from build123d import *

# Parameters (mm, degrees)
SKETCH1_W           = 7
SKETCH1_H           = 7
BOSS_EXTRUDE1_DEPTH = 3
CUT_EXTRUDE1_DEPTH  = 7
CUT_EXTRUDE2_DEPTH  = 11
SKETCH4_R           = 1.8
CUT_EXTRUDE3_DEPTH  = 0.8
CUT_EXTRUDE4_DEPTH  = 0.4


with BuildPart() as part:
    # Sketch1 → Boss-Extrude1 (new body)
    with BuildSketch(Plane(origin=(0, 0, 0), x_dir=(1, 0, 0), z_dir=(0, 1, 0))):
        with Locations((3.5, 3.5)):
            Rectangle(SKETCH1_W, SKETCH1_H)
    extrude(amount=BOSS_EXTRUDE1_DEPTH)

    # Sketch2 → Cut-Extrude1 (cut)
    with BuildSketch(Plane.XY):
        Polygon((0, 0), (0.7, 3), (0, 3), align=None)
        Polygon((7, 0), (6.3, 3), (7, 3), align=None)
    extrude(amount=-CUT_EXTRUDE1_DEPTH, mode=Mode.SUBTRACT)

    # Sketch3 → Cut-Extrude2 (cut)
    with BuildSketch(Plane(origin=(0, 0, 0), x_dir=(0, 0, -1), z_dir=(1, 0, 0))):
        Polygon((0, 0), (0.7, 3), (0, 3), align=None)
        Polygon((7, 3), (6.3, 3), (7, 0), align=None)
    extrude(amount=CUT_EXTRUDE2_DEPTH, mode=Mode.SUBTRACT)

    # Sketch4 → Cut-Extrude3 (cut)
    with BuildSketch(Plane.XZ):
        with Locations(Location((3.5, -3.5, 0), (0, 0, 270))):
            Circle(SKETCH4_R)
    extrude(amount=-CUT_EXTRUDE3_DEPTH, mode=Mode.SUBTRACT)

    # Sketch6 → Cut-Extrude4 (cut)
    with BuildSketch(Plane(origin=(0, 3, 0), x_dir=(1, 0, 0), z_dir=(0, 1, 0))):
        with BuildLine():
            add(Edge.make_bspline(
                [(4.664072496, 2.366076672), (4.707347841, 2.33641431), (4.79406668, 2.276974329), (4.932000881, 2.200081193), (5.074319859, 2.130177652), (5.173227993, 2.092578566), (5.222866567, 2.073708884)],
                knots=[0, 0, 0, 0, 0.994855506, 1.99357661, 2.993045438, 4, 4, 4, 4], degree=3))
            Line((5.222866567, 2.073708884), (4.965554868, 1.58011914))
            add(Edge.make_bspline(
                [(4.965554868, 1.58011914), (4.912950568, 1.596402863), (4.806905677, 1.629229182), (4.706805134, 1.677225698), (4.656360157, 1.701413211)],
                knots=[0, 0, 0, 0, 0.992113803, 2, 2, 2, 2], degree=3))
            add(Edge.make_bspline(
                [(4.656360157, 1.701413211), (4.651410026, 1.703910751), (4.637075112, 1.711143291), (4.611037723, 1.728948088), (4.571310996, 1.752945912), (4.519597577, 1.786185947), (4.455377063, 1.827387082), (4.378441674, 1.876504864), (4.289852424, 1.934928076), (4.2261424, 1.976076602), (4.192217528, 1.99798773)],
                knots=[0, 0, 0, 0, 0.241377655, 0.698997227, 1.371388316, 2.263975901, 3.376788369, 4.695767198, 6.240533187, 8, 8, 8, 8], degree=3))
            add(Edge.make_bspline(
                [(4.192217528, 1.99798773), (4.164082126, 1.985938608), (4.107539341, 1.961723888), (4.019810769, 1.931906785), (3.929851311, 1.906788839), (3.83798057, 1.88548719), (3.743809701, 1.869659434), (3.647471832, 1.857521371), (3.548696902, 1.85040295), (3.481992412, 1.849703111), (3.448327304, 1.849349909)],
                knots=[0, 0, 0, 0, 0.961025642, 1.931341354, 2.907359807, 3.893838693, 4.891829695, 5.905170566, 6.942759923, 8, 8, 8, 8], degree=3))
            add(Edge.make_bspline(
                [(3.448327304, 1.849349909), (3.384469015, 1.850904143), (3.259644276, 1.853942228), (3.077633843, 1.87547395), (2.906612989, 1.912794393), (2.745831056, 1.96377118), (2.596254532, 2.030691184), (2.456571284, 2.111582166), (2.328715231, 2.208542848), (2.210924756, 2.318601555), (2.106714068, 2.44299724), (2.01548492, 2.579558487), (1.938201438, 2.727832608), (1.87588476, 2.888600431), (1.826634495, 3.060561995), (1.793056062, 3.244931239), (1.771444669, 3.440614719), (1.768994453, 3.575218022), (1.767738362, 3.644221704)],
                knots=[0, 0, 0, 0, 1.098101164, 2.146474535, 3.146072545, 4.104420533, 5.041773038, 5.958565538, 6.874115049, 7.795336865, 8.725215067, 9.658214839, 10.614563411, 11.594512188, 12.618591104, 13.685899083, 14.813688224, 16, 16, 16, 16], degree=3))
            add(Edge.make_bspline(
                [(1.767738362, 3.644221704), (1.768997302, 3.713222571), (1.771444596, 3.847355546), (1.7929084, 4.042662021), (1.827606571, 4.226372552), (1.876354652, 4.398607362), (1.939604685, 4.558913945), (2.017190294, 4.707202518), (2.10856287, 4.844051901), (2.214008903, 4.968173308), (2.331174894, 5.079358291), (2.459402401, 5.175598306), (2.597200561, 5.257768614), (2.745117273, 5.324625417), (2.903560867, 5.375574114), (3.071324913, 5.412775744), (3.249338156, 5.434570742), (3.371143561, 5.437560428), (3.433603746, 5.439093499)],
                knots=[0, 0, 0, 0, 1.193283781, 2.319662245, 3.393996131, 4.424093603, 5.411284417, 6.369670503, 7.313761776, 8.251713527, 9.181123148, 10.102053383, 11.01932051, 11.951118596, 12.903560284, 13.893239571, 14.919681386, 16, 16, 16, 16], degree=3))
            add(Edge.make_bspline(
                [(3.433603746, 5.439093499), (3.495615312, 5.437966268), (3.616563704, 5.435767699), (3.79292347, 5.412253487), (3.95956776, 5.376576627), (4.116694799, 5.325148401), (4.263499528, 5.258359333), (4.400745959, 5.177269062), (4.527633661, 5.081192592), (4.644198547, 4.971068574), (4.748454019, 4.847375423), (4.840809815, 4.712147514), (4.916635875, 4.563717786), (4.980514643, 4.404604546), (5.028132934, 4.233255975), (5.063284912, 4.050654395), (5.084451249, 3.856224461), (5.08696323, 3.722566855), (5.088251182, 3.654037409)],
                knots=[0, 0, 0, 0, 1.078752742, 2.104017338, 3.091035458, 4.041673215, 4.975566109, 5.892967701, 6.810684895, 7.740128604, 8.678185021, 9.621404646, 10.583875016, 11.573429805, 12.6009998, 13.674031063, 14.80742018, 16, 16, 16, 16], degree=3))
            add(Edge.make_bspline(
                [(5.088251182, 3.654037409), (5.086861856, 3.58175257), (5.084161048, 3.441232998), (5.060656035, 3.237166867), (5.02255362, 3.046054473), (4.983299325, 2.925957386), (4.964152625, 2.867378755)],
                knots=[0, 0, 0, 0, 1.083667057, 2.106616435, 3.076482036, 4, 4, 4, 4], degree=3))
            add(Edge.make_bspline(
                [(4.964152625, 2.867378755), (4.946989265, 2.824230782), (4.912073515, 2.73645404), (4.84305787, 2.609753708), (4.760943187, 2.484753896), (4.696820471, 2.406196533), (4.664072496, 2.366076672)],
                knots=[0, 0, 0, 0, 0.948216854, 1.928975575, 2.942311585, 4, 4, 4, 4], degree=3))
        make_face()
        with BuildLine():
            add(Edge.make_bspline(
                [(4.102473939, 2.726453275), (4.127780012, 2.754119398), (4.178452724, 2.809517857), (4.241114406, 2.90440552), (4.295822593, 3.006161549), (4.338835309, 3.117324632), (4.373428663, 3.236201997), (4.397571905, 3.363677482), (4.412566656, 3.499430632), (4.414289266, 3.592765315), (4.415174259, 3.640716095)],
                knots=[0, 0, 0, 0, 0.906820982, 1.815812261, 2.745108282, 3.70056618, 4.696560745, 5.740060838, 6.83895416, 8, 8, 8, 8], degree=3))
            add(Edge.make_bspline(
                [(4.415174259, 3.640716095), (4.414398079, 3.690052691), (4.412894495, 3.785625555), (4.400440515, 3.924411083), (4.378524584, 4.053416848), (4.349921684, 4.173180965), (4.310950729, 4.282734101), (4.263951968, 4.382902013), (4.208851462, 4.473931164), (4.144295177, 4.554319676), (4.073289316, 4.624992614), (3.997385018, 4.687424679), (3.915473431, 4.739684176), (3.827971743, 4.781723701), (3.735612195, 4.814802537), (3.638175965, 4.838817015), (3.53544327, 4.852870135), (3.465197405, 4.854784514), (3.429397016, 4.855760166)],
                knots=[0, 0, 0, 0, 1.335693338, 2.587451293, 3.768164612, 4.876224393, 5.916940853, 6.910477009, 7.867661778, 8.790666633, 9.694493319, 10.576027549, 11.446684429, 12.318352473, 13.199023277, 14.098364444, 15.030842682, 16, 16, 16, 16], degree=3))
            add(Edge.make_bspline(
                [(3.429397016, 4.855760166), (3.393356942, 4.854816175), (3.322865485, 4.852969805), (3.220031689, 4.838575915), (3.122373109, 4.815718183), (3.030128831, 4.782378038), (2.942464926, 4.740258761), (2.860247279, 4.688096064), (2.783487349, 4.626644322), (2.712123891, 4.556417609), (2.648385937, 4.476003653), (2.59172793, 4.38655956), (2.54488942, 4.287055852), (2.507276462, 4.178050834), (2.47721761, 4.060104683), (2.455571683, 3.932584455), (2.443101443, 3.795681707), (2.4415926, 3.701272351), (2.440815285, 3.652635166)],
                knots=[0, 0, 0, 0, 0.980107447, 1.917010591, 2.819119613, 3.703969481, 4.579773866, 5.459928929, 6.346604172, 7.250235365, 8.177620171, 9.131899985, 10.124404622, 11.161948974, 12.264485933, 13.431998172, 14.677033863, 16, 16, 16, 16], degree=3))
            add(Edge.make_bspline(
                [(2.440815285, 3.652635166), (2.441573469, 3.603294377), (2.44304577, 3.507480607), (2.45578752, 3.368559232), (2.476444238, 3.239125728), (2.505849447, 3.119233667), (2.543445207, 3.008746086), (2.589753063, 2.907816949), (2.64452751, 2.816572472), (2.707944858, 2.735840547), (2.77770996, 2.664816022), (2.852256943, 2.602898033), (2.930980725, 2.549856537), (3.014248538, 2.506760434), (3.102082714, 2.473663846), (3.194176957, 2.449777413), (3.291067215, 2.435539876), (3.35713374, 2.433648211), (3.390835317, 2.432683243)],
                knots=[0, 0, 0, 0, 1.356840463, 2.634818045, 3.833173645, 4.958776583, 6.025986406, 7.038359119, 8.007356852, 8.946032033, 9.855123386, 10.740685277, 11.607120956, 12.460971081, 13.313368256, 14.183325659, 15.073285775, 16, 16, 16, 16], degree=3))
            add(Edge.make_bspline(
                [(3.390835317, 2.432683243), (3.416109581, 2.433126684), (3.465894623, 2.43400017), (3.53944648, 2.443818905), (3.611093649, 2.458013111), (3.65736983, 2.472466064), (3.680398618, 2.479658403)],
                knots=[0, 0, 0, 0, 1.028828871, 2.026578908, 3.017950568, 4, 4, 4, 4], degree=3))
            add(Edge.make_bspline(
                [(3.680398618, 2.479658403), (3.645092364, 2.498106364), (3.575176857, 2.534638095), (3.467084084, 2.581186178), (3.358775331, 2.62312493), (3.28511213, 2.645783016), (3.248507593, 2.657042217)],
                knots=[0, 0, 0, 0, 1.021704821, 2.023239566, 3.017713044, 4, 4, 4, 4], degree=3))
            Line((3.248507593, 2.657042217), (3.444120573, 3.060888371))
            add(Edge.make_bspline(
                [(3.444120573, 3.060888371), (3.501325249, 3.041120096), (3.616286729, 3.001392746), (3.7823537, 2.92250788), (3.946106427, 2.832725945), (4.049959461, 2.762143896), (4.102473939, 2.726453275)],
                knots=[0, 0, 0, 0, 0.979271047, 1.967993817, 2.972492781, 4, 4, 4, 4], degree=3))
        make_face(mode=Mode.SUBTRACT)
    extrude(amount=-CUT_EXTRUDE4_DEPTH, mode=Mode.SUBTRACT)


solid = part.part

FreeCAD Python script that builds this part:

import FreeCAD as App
import Part
import Sketcher

V = App.Vector
Q = App.Units.Quantity


def add_polygon(sketch, points):
    """Adds a closed chain of lines whose ends are joined by coincident constraints."""
    first, n = sketch.GeometryCount, len(points)
    for a, b in zip(points, points[1:] + points[:1]):
        sketch.addGeometry(Part.LineSegment(App.Vector(*a, 0), App.Vector(*b, 0)), False)
    for i in range(n):
        sketch.addConstraint(Sketcher.Constraint("Coincident", first + i, 2, first + (i + 1) % n, 1))

doc = App.newDocument("Part")
body = doc.addObject("PartDesign::Body", "Body")

# Sketch on XZ plane
sketch1 = body.newObject("Sketcher::SketchObject", "Sketch")
sketch1.AttachmentSupport = (doc.getObject("XZ_Plane"), [""])
sketch1.MapMode = "FlatFace"
add_polygon(sketch1, [(0, -7), (0, 0), (7, 0), (7, -7)])  # lines 0-3
sketch1.addConstraint([
    Sketcher.Constraint("Vertical", 0),
    Sketcher.Constraint("Horizontal", 1),
    Sketcher.Constraint("Vertical", 2),
    Sketcher.Constraint("Horizontal", 3),
    Sketcher.Constraint("Coincident", 0, 2, -1, 1),
    Sketcher.Constraint("Equal", 3, 0),
    Sketcher.Constraint("DistanceX", 1, 1, 1, 2, Q("7 mm")),
])
pad1 = body.newObject("PartDesign::Pad", "Pad")
pad1.Profile = sketch1
pad1.Length = 3
pad1.Reversed = True

# Sketch on XY plane
sketch2 = body.newObject("Sketcher::SketchObject", "Sketch001")
sketch2.AttachmentSupport = (doc.getObject("XY_Plane"), [""])
sketch2.MapMode = "FlatFace"
add_polygon(sketch2, [(0, 0), (0.7, 3), (0, 3)])  # lines 0-2
add_polygon(sketch2, [(6.3, 3), (7, 0), (7, 3)])  # lines 3-5
sketch2.addConstraint([
    Sketcher.Constraint("Horizontal", 1),
    Sketcher.Constraint("Vertical", 2),
    Sketcher.Constraint("Vertical", 4),
    Sketcher.Constraint("Horizontal", 5),
    Sketcher.Constraint("Coincident", 2, 2, -1, 1),
    Sketcher.Constraint("PointOnObject", 3, 2, -1),
    Sketcher.Constraint("Horizontal", 1, 2, 4, 2),
    Sketcher.Constraint("Equal", 1, 5),
    Sketcher.Constraint("DistanceY", 2, 2, 2, 1, Q("3 mm")),
    Sketcher.Constraint("DistanceX", 1, 2, 1, 1, Q("0.7 mm")),
    Sketcher.Constraint("DistanceX", -1, 1, 3, 2, Q("7 mm")),
])
pocket1 = body.newObject("PartDesign::Pocket", "Pocket")
pocket1.Profile = sketch2
pocket1.Length = 7

# Sketch on YZ plane
sketch3 = body.newObject("Sketcher::SketchObject", "Sketch002")
sketch3.AttachmentSupport = (doc.getObject("YZ_Plane"), [""])
sketch3.MapMode = "FlatFace"
add_polygon(sketch3, [(0, 0), (3, -0.7), (3, 0)])  # lines 0-2
add_polygon(sketch3, [(3, -7), (3, -6.3), (0, -7)])  # lines 3-5
sketch3.addConstraint([
    Sketcher.Constraint("Vertical", 1),
    Sketcher.Constraint("Horizontal", 2),
    Sketcher.Constraint("Vertical", 3),
    Sketcher.Constraint("Horizontal", 5),
    Sketcher.Constraint("Coincident", 2, 2, -1, 1),
    Sketcher.Constraint("PointOnObject", 4, 2, -2),
    Sketcher.Constraint("Vertical", 1, 2, 3, 2),
    Sketcher.Constraint("Equal", 1, 3),
    Sketcher.Constraint("DistanceX", 2, 2, 2, 1, Q("3 mm")),
    Sketcher.Constraint("DistanceY", 1, 1, 1, 2, Q("0.7 mm")),
    Sketcher.Constraint("DistanceY", 4, 2, -1, 1, Q("7 mm")),
])
pocket2 = body.newObject("PartDesign::Pocket", "Pocket001")
pocket2.Profile = sketch3
pocket2.Length = 11
pocket2.Reversed = True

# Sketch on XZ plane
sketch4 = body.newObject("Sketcher::SketchObject", "Sketch003")
sketch4.AttachmentSupport = (doc.getObject("XZ_Plane"), [""])
sketch4.MapMode = "FlatFace"
sketch4.addGeometry(Part.Circle(V(3.5, -3.5, 0), V(0, 0, 1), 1.8), False)
sketch4.addConstraint([
    Sketcher.Constraint("Diameter", 0, Q("3.6 mm")),
    Sketcher.Constraint("DistanceX", -1, 1, 0, 3, Q("3.5 mm")),
    Sketcher.Constraint("DistanceY", 0, 3, -1, 1, Q("3.5 mm")),
])
pocket3 = body.newObject("PartDesign::Pocket", "Pocket002")
pocket3.Profile = sketch4
pocket3.Length = 0.8

# Sketch on XZ plane
sketch5 = body.newObject("Sketcher::SketchObject", "Sketch004")
sketch5.AttachmentSupport = (doc.getObject("XZ_Plane"), [""])
sketch5.MapMode = "FlatFace"
sketch5.AttachmentOffset = App.Placement(V(0, 0, -3), App.Rotation())
sketch5.addGeometry([
    Part.BSplineCurve([V(4.664072, -2.366077, 0), V(4.707348, -2.336414, 0), V(4.794067, -2.276974, 0), V(4.932001, -2.200081, 0), V(5.07432, -2.130178, 0), V(5.173228, -2.092579, 0), V(5.222867, -2.073709, 0)], [4, 1, 1, 1, 4], [0, 0.994855506, 1.99357661, 2.993045438, 4], False, 3, [1, 1, 1, 1, 1, 1, 1], False),  # 0
    Part.BSplineCurve([V(4.964153, -2.867379, 0), V(4.946989, -2.824231, 0), V(4.912074, -2.736454, 0), V(4.843058, -2.609754, 0), V(4.760943, -2.484754, 0), V(4.69682, -2.406197, 0), V(4.664072, -2.366077, 0)], [4, 1, 1, 1, 4], [0, 0.948216854, 1.928975575, 2.942311585, 4], False, 3, [1, 1, 1, 1, 1, 1, 1], False),  # 1
    Part.BSplineCurve([V(5.088251, -3.654037, 0), V(5.086862, -3.581753, 0), V(5.084161, -3.441233, 0), V(5.060656, -3.237167, 0), V(5.022554, -3.046054, 0), V(4.983299, -2.925957, 0), V(4.964153, -2.867379, 0)], [4, 1, 1, 1, 4], [0, 1.083667057, 2.106616435, 3.076482036, 4], False, 3, [1, 1, 1, 1, 1, 1, 1], False),  # 2
    Part.BSplineCurve([V(3.433604, -5.439093, 0), V(3.495615, -5.437966, 0), V(3.616564, -5.435768, 0), V(3.792923, -5.412253, 0), V(3.959568, -5.376577, 0), V(4.116695, -5.325148, 0), V(4.2635, -5.258359, 0), V(4.400746, -5.177269, 0), V(4.527634, -5.081193, 0), V(4.644199, -4.971069, 0), V(4.748454, -4.847375, 0), V(4.84081, -4.712148, 0), V(4.916636, -4.563718, 0), V(4.980515, -4.404605, 0), V(5.028133, -4.233256, 0), V(5.063285, -4.050654, 0), V(5.084451, -3.856224, 0), V(5.086963, -3.722567, 0), V(5.088251, -3.654037, 0)], [4, 1, 1, 1, 1, 1, 1, 1, 1, 1, 1, 1, 1, 1, 1, 1, 4], [0, 1.078752742, 2.104017338, 3.091035458, 4.041673215, 4.975566109, 5.892967701, 6.810684895, 7.740128604, 8.678185021, 9.621404646, 10.583875016, 11.573429805, 12.6009998, 13.674031063, 14.80742018, 16], False, 3, [1, 1, 1, 1, 1, 1, 1, 1, 1, 1, 1, 1, 1, 1, 1, 1, 1, 1, 1], False),  # 3
    Part.BSplineCurve([V(1.767738, -3.644222, 0), V(1.768997, -3.713223, 0), V(1.771445, -3.847356, 0), V(1.792908, -4.042662, 0), V(1.827607, -4.226373, 0), V(1.876355, -4.398607, 0), V(1.939605, -4.558914, 0), V(2.01719, -4.707203, 0), V(2.108563, -4.844052, 0), V(2.214009, -4.968173, 0), V(2.331175, -5.079358, 0), V(2.459402, -5.175598, 0), V(2.597201, -5.257769, 0), V(2.745117, -5.324625, 0), V(2.903561, -5.375574, 0), V(3.071325, -5.412776, 0), V(3.249338, -5.434571, 0), V(3.371144, -5.43756, 0), V(3.433604, -5.439093, 0)], [4, 1, 1, 1, 1, 1, 1, 1, 1, 1, 1, 1, 1, 1, 1, 1, 4], [0, 1.193283781, 2.319662245, 3.393996131, 4.424093603, 5.411284417, 6.369670503, 7.313761776, 8.251713527, 9.181123148, 10.102053383, 11.01932051, 11.951118596, 12.903560284, 13.893239571, 14.919681386, 16], False, 3, [1, 1, 1, 1, 1, 1, 1, 1, 1, 1, 1, 1, 1, 1, 1, 1, 1, 1, 1], False),  # 4
    Part.BSplineCurve([V(3.448327, -1.84935, 0), V(3.384469, -1.850904, 0), V(3.259644, -1.853942, 0), V(3.077634, -1.875474, 0), V(2.906613, -1.912794, 0), V(2.745831, -1.963771, 0), V(2.596255, -2.030691, 0), V(2.456571, -2.111582, 0), V(2.328715, -2.208543, 0), V(2.210925, -2.318602, 0), V(2.106714, -2.442997, 0), V(2.015485, -2.579558, 0), V(1.938201, -2.727833, 0), V(1.875885, -2.8886, 0), V(1.826634, -3.060562, 0), V(1.793056, -3.244931, 0), V(1.771445, -3.440615, 0), V(1.768994, -3.575218, 0), V(1.767738, -3.644222, 0)], [4, 1, 1, 1, 1, 1, 1, 1, 1, 1, 1, 1, 1, 1, 1, 1, 4], [0, 1.098101164, 2.146474535, 3.146072545, 4.104420533, 5.041773038, 5.958565538, 6.874115049, 7.795336865, 8.725215067, 9.658214839, 10.614563411, 11.594512188, 12.618591104, 13.685899083, 14.813688224, 16], False, 3, [1, 1, 1, 1, 1, 1, 1, 1, 1, 1, 1, 1, 1, 1, 1, 1, 1, 1, 1], False),  # 5
    Part.BSplineCurve([V(4.192218, -1.997988, 0), V(4.164082, -1.985939, 0), V(4.107539, -1.961724, 0), V(4.019811, -1.931907, 0), V(3.929851, -1.906789, 0), V(3.837981, -1.885487, 0), V(3.74381, -1.869659, 0), V(3.647472, -1.857521, 0), V(3.548697, -1.850403, 0), V(3.481992, -1.849703, 0), V(3.448327, -1.84935, 0)], [4, 1, 1, 1, 1, 1, 1, 1, 4], [0, 0.961025642, 1.931341354, 2.907359807, 3.893838693, 4.891829695, 5.905170566, 6.942759923, 8], False, 3, [1, 1, 1, 1, 1, 1, 1, 1, 1, 1, 1], False),  # 6
    Part.BSplineCurve([V(4.65636, -1.701413, 0), V(4.65141, -1.703911, 0), V(4.637075, -1.711143, 0), V(4.611038, -1.728948, 0), V(4.571311, -1.752946, 0), V(4.519598, -1.786186, 0), V(4.455377, -1.827387, 0), V(4.378442, -1.876505, 0), V(4.289852, -1.934928, 0), V(4.226142, -1.976077, 0), V(4.192218, -1.997988, 0)], [4, 1, 1, 1, 1, 1, 1, 1, 4], [0, 0.241377655, 0.698997227, 1.371388316, 2.263975901, 3.376788369, 4.695767198, 6.240533187, 8], False, 3, [1, 1, 1, 1, 1, 1, 1, 1, 1, 1, 1], False),  # 7
    Part.BSplineCurve([V(4.965555, -1.580119, 0), V(4.912951, -1.596403, 0), V(4.806906, -1.629229, 0), V(4.706805, -1.677226, 0), V(4.65636, -1.701413, 0)], [4, 1, 4], [0, 0.992113803, 2], False, 3, [1, 1, 1, 1, 1], False),  # 8
    Part.LineSegment(V(4.965555, -1.580119, 0), V(5.222867, -2.073709, 0)),  # 9
    Part.BSplineCurve([V(3.444121, -3.060888, 0), V(3.501325, -3.04112, 0), V(3.616287, -3.001393, 0), V(3.782354, -2.922508, 0), V(3.946106, -2.832726, 0), V(4.049959, -2.762144, 0), V(4.102474, -2.726453, 0)], [4, 1, 1, 1, 4], [0, 0.979271047, 1.967993817, 2.972492781, 4], False, 3, [1, 1, 1, 1, 1, 1, 1], False),  # 10
    Part.LineSegment(V(3.444121, -3.060888, 0), V(3.248508, -2.657042, 0)),  # 11
    Part.BSplineCurve([V(3.680399, -2.479658, 0), V(3.645092, -2.498106, 0), V(3.575177, -2.534638, 0), V(3.467084, -2.581186, 0), V(3.358775, -2.623125, 0), V(3.285112, -2.645783, 0), V(3.248508, -2.657042, 0)], [4, 1, 1, 1, 4], [0, 1.021704821, 2.023239566, 3.017713044, 4], False, 3, [1, 1, 1, 1, 1, 1, 1], False),  # 12
    Part.BSplineCurve([V(3.390835, -2.432683, 0), V(3.41611, -2.433127, 0), V(3.465895, -2.434, 0), V(3.539446, -2.443819, 0), V(3.611094, -2.458013, 0), V(3.65737, -2.472466, 0), V(3.680399, -2.479658, 0)], [4, 1, 1, 1, 4], [0, 1.028828871, 2.026578908, 3.017950568, 4], False, 3, [1, 1, 1, 1, 1, 1, 1], False),  # 13
    Part.BSplineCurve([V(2.440815, -3.652635, 0), V(2.441573, -3.603294, 0), V(2.443046, -3.507481, 0), V(2.455788, -3.368559, 0), V(2.476444, -3.239126, 0), V(2.505849, -3.119234, 0), V(2.543445, -3.008746, 0), V(2.589753, -2.907817, 0), V(2.644528, -2.816572, 0), V(2.707945, -2.735841, 0), V(2.77771, -2.664816, 0), V(2.852257, -2.602898, 0), V(2.930981, -2.549857, 0), V(3.014249, -2.50676, 0), V(3.102083, -2.473664, 0), V(3.194177, -2.449777, 0), V(3.291067, -2.43554, 0), V(3.357134, -2.433648, 0), V(3.390835, -2.432683, 0)], [4, 1, 1, 1, 1, 1, 1, 1, 1, 1, 1, 1, 1, 1, 1, 1, 4], [0, 1.356840463, 2.634818045, 3.833173645, 4.958776583, 6.025986406, 7.038359119, 8.007356852, 8.946032033, 9.855123386, 10.740685277, 11.607120956, 12.460971081, 13.313368256, 14.183325659, 15.073285775, 16], False, 3, [1, 1, 1, 1, 1, 1, 1, 1, 1, 1, 1, 1, 1, 1, 1, 1, 1, 1, 1], False),  # 14
    Part.BSplineCurve([V(3.429397, -4.85576, 0), V(3.393357, -4.854816, 0), V(3.322865, -4.85297, 0), V(3.220032, -4.838576, 0), V(3.122373, -4.815718, 0), V(3.030129, -4.782378, 0), V(2.942465, -4.740259, 0), V(2.860247, -4.688096, 0), V(2.783487, -4.626644, 0), V(2.712124, -4.556418, 0), V(2.648386, -4.476004, 0), V(2.591728, -4.38656, 0), V(2.544889, -4.287056, 0), V(2.507276, -4.178051, 0), V(2.477218, -4.060105, 0), V(2.455572, -3.932584, 0), V(2.443101, -3.795682, 0), V(2.441593, -3.701272, 0), V(2.440815, -3.652635, 0)], [4, 1, 1, 1, 1, 1, 1, 1, 1, 1, 1, 1, 1, 1, 1, 1, 4], [0, 0.980107447, 1.917010591, 2.819119613, 3.703969481, 4.579773866, 5.459928929, 6.346604172, 7.250235365, 8.177620171, 9.131899985, 10.124404622, 11.161948974, 12.264485933, 13.431998172, 14.677033863, 16], False, 3, [1, 1, 1, 1, 1, 1, 1, 1, 1, 1, 1, 1, 1, 1, 1, 1, 1, 1, 1], False),  # 15
    Part.BSplineCurve([V(4.415174, -3.640716, 0), V(4.414398, -3.690053, 0), V(4.412894, -3.785626, 0), V(4.400441, -3.924411, 0), V(4.378525, -4.053417, 0), V(4.349922, -4.173181, 0), V(4.310951, -4.282734, 0), V(4.263952, -4.382902, 0), V(4.208851, -4.473931, 0), V(4.144295, -4.55432, 0), V(4.073289, -4.624993, 0), V(3.997385, -4.687425, 0), V(3.915473, -4.739684, 0), V(3.827972, -4.781724, 0), V(3.735612, -4.814803, 0), V(3.638176, -4.838817, 0), V(3.535443, -4.85287, 0), V(3.465197, -4.854785, 0), V(3.429397, -4.85576, 0)], [4, 1, 1, 1, 1, 1, 1, 1, 1, 1, 1, 1, 1, 1, 1, 1, 4], [0, 1.335693338, 2.587451293, 3.768164612, 4.876224393, 5.916940853, 6.910477009, 7.867661778, 8.790666633, 9.694493319, 10.576027549, 11.446684429, 12.318352473, 13.199023277, 14.098364444, 15.030842682, 16], False, 3, [1, 1, 1, 1, 1, 1, 1, 1, 1, 1, 1, 1, 1, 1, 1, 1, 1, 1, 1], False),  # 16
    Part.BSplineCurve([V(4.102474, -2.726453, 0), V(4.12778, -2.754119, 0), V(4.178453, -2.809518, 0), V(4.241114, -2.904406, 0), V(4.295823, -3.006162, 0), V(4.338835, -3.117325, 0), V(4.373429, -3.236202, 0), V(4.397572, -3.363677, 0), V(4.412567, -3.499431, 0), V(4.414289, -3.592765, 0), V(4.415174, -3.640716, 0)], [4, 1, 1, 1, 1, 1, 1, 1, 4], [0, 0.906820982, 1.815812261, 2.745108282, 3.70056618, 4.696560745, 5.740060838, 6.83895416, 8], False, 3, [1, 1, 1, 1, 1, 1, 1, 1, 1, 1, 1], False),  # 17
], False)
sketch5.addConstraint([
    Sketcher.Constraint("Block", 0),
    Sketcher.Constraint("Block", 1),
    Sketcher.Constraint("Block", 2),
    Sketcher.Constraint("Block", 3),
    Sketcher.Constraint("Block", 4),
    Sketcher.Constraint("Block", 5),
    Sketcher.Constraint("Block", 6),
    Sketcher.Constraint("Block", 7),
    Sketcher.Constraint("Block", 8),
    Sketcher.Constraint("Block", 10),
    Sketcher.Constraint("Block", 12),
    Sketcher.Constraint("Block", 13),
    Sketcher.Constraint("Block", 14),
    Sketcher.Constraint("Block", 15),
    Sketcher.Constraint("Block", 16),
    Sketcher.Constraint("Block", 17),
    Sketcher.Constraint("Coincident", 8, 1, 9, 1),
    Sketcher.Constraint("Coincident", 9, 2, 0, 2),
    Sketcher.Constraint("Coincident", 10, 1, 11, 1),
    Sketcher.Constraint("Coincident", 11, 2, 12, 2),
])
pocket4 = body.newObject("PartDesign::Pocket", "Pocket003")
pocket4.Profile = sketch5
pocket4.Length = 0.4
pocket4.Reversed = True

doc.recompute()
